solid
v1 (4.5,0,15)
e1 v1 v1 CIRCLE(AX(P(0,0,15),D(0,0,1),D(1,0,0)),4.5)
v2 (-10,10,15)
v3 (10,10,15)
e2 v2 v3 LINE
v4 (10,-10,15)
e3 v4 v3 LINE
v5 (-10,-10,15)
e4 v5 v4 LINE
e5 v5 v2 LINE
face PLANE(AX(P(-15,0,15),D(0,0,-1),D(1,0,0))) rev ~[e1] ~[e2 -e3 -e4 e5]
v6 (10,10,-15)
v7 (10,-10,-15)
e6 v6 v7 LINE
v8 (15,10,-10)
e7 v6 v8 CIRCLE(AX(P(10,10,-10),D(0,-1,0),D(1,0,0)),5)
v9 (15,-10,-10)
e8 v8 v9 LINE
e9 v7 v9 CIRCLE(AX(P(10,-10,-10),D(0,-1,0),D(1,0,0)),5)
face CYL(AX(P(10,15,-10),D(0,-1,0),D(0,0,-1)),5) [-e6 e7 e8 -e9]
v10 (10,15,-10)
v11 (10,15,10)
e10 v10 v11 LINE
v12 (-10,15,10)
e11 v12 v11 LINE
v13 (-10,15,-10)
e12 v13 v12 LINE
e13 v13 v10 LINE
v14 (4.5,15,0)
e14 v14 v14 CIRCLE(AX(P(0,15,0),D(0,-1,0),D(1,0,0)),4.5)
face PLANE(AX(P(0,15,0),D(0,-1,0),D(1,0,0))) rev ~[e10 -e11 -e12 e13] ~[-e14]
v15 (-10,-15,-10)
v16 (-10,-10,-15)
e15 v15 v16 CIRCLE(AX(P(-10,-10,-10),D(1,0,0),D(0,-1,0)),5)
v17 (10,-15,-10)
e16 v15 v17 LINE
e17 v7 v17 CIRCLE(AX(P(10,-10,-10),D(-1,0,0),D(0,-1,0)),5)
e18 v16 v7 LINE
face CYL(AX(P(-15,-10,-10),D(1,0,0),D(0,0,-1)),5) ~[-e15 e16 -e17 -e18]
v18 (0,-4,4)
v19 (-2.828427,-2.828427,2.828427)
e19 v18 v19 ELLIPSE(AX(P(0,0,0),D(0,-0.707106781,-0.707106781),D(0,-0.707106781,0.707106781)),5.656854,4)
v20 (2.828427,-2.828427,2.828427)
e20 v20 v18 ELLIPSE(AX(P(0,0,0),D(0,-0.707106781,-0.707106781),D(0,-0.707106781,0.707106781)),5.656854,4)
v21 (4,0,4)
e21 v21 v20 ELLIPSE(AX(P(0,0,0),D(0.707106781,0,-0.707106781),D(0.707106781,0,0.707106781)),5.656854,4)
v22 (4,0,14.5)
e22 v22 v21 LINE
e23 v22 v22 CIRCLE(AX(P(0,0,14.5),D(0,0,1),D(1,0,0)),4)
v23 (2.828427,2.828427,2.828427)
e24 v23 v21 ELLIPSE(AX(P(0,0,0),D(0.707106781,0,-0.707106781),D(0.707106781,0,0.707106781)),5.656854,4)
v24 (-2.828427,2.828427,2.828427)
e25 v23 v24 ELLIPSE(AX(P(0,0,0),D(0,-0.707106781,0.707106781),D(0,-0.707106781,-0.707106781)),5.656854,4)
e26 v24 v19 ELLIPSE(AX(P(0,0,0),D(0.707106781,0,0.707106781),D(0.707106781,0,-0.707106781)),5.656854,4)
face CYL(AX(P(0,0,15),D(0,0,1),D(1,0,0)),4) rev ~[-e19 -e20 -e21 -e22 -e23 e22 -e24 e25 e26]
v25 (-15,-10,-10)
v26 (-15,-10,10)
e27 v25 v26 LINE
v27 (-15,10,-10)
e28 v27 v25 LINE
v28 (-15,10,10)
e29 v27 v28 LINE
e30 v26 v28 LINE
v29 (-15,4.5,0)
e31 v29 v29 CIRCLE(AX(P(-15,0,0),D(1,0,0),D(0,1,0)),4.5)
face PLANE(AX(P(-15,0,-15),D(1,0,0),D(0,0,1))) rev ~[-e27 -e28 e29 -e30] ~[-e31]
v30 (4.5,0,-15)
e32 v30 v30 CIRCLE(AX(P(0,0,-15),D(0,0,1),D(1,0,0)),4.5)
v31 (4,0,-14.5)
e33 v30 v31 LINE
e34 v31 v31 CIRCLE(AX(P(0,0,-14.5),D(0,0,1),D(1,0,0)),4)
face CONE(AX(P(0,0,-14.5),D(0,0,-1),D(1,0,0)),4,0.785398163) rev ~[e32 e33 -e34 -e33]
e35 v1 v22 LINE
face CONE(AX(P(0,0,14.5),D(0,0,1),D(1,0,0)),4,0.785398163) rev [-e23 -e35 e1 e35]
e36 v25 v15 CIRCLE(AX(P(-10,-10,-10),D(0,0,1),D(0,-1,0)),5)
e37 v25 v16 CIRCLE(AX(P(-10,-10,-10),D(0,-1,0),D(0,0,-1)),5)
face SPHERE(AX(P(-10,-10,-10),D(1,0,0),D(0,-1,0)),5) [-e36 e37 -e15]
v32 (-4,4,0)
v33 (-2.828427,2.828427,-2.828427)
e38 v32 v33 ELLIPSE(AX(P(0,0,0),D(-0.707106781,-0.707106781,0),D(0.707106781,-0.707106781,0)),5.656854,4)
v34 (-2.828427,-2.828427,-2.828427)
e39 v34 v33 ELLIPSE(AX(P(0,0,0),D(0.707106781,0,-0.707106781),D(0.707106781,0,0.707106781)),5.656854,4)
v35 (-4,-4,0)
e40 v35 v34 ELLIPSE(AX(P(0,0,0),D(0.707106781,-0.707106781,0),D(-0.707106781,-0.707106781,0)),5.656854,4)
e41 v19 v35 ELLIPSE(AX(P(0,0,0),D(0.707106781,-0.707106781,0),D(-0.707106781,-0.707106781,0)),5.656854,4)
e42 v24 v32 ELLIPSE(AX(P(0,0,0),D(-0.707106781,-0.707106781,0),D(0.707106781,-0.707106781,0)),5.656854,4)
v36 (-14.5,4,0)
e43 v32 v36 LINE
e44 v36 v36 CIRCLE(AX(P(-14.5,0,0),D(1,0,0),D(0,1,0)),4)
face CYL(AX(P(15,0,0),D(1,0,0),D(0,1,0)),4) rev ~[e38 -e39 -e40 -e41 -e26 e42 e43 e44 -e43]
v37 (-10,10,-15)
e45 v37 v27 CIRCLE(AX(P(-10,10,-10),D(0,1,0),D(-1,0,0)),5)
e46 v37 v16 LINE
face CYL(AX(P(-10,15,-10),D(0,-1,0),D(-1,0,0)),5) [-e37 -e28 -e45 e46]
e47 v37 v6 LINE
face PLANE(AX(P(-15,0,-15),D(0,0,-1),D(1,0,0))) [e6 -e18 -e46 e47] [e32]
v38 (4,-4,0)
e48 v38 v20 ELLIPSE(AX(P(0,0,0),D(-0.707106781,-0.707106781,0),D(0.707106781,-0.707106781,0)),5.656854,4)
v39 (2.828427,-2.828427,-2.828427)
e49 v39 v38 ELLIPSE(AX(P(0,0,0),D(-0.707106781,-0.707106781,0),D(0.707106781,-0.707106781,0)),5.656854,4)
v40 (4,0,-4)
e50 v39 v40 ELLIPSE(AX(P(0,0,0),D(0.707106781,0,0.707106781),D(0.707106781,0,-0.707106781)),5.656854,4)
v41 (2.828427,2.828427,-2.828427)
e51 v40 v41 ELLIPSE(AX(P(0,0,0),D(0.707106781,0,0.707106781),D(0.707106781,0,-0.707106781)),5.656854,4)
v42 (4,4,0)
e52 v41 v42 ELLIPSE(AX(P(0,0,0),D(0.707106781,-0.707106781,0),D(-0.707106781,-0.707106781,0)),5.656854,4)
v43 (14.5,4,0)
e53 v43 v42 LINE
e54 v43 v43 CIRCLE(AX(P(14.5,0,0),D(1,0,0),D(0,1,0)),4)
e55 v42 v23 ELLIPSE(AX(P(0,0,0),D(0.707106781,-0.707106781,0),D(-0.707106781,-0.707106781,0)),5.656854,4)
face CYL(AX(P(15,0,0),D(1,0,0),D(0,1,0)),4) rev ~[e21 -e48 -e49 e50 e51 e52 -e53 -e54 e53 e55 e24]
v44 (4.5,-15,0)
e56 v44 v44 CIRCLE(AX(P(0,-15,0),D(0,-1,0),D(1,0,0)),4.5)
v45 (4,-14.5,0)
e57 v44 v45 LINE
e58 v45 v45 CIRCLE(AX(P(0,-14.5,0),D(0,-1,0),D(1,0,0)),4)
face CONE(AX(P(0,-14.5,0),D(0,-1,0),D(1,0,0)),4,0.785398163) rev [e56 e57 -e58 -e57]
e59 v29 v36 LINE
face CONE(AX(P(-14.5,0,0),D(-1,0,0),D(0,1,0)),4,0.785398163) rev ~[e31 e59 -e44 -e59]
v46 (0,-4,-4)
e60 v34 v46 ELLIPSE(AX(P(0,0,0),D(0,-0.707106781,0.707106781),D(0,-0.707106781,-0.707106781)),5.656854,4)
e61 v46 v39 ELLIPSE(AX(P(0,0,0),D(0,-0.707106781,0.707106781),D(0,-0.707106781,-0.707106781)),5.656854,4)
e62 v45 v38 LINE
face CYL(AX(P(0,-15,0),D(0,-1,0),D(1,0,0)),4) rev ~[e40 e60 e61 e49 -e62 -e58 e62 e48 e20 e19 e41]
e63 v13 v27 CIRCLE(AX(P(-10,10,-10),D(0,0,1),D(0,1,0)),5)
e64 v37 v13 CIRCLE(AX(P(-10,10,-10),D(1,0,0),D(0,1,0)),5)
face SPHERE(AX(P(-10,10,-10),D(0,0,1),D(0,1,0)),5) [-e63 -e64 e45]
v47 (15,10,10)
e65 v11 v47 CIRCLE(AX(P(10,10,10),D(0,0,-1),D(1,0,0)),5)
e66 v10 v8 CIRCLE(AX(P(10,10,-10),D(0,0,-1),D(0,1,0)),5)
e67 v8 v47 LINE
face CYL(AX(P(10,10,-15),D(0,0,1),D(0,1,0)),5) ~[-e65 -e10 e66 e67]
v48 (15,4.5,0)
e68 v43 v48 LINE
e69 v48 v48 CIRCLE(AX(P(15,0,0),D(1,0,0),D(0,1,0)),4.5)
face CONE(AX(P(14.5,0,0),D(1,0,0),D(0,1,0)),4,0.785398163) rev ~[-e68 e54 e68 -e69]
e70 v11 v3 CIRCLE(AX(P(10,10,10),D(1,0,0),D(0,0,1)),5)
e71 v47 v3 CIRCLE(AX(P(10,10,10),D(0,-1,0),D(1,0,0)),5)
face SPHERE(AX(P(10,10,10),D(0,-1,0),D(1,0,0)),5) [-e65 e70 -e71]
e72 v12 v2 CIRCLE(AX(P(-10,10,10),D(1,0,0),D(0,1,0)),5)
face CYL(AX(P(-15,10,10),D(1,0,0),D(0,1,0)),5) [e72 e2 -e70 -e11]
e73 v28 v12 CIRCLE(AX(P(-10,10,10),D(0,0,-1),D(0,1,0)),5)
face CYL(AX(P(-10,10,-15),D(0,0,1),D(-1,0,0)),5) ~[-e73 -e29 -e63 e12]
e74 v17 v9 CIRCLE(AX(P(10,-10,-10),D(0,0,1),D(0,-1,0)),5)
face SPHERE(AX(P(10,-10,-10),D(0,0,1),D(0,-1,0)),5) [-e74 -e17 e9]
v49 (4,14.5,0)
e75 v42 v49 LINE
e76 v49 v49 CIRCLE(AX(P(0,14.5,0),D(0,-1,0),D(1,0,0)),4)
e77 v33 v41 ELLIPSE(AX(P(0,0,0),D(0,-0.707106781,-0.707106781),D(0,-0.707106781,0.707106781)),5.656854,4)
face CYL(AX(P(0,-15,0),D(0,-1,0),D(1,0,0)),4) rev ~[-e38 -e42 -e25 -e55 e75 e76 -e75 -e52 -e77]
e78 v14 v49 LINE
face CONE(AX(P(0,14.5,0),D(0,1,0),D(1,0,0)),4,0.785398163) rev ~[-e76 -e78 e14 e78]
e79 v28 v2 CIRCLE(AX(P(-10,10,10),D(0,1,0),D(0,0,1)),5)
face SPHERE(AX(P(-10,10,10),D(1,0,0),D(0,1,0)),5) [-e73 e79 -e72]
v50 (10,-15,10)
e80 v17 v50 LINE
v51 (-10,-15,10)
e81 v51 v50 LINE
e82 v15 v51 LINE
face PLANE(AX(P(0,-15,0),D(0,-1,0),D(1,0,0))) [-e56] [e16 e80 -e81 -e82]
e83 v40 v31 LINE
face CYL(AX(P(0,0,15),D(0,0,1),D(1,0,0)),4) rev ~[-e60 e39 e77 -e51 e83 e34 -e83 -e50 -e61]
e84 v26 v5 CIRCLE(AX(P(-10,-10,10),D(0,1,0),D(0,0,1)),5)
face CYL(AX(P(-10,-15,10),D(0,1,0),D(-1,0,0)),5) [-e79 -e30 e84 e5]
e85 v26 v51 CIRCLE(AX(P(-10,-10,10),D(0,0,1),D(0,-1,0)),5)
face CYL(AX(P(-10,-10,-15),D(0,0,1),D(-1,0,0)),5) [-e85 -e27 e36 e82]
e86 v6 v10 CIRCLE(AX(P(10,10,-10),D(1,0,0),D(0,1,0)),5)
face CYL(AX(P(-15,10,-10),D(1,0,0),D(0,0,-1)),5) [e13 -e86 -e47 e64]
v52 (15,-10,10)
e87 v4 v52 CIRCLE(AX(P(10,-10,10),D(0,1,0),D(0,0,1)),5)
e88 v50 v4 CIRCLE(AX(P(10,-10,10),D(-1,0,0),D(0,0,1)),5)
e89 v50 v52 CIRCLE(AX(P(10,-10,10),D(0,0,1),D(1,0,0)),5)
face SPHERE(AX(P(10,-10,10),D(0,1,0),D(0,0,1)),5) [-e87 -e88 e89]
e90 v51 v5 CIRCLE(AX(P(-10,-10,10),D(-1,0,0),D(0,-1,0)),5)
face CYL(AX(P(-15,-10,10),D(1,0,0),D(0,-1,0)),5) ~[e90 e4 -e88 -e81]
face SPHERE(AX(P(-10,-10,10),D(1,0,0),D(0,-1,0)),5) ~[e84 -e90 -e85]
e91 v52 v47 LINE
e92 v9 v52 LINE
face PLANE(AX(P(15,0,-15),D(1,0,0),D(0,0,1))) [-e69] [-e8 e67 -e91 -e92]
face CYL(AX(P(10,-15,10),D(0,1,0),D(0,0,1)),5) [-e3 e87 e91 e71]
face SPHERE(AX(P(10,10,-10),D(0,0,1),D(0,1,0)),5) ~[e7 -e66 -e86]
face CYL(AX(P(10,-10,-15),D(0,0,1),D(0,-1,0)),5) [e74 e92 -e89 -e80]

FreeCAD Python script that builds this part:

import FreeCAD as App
import Part
import Sketcher

V = App.Vector


def edges_at(feature, points):
    """Names of the edges that pass closest to the given points."""
    edges = feature.Shape.Edges
    near = lambda p: min(range(len(edges)), key=lambda i: edges[i].distToShape(Part.Vertex(*p))[0])
    return sorted({f"Edge{near(p) + 1}" for p in points})


def add_polygon(sketch, points):
    """Adds a closed chain of lines whose ends are joined by coincident constraints."""
    first, n = sketch.GeometryCount, len(points)
    for a, b in zip(points, points[1:] + points[:1]):
        sketch.addGeometry(Part.LineSegment(App.Vector(*a, 0), App.Vector(*b, 0)), False)
    for i in range(n):
        sketch.addConstraint(Sketcher.Constraint("Coincident", first + i, 2, first + (i + 1) % n, 1))

doc = App.newDocument("Part")
body = doc.addObject("PartDesign::Body", "Body")

sketch1 = body.newObject("Sketcher::SketchObject", "Sketch")
sketch1.AttachmentSupport = (doc.getObject("XZ_Plane"), [""])
sketch1.MapMode = "FlatFace"
add_polygon(sketch1, [(-15, 15), (-15, -15), (15, -15), (15, 15)])
sketch1.addConstraint([
    Sketcher.Constraint("Vertical", 0),
    Sketcher.Constraint("Horizontal", 1),
    Sketcher.Constraint("Vertical", 2),
    Sketcher.Constraint("Horizontal", 3),
    Sketcher.Constraint("Symmetric", 0, 2, 2, 2, -1, 1),
    Sketcher.Constraint("Equal", 3, 0),
    Sketcher.Constraint("DistanceX", 1, 1, 1, 2, 30.0),
])
pad1 = body.newObject("PartDesign::Pad", "Pad")
pad1.Profile = sketch1
pad1.Length = 30
pad1.Midplane = True

sketch2 = body.newObject("Sketcher::SketchObject", "Sketch001")
sketch2.AttachmentSupport = (doc.getObject("XZ_Plane"), [""])
sketch2.MapMode = "FlatFace"
sketch2.AttachmentOffset = App.Placement(V(0, 0, 15), App.Rotation())
sketch2.addGeometry(Part.Circle(V(0, 0, 0), V(0, 0, 1), 4), False)
sketch2.addConstraint([
    Sketcher.Constraint("Coincident", 0, 3, -1, 1),
    Sketcher.Constraint("Diameter", 0, 8.0),
])
pocket1 = body.newObject("PartDesign::Pocket", "Pocket")
pocket1.Profile = sketch2
pocket1.Type = "ThroughAll"

sketch3 = body.newObject("Sketcher::SketchObject", "Sketch002")
sketch3.AttachmentSupport = (doc.getObject("YZ_Plane"), [""])
sketch3.MapMode = "FlatFace"
sketch3.AttachmentOffset = App.Placement(V(0, 0, 15), App.Rotation())
sketch3.addGeometry(Part.Circle(V(0, 0, 0), V(0, 0, 1), 4), False)
sketch3.addConstraint([
    Sketcher.Constraint("Coincident", 0, 3, -1, 1),
    Sketcher.Constraint("Diameter", 0, 8.0),
])
pocket2 = body.newObject("PartDesign::Pocket", "Pocket001")
pocket2.Profile = sketch3
pocket2.Type = "ThroughAll"

sketch4 = body.newObject("Sketcher::SketchObject", "Sketch003")
sketch4.AttachmentSupport = (doc.getObject("XY_Plane"), [""])
sketch4.MapMode = "FlatFace"
sketch4.AttachmentOffset = App.Placement(V(0, 0, 15), App.Rotation())
sketch4.addGeometry(Part.Circle(V(0, 0, 0), V(0, 0, 1), 4), False)
sketch4.addConstraint([
    Sketcher.Constraint("Coincident", 0, 3, -1, 1),
    Sketcher.Constraint("Diameter", 0, 8.0),
])
pocket3 = body.newObject("PartDesign::Pocket", "Pocket002")
pocket3.Profile = sketch4
pocket3.Type = "ThroughAll"
doc.recompute()

fillet = body.newObject("PartDesign::Fillet", "Fillet")
fillet.Base = (pocket3, edges_at(pocket3, [
    (15, 0, 15),
    (0, -15, 15),
    (15, -15, 0),
    (0, -15, -15),
    (-15, -15, 0),
    (15, 15, 0),
    (0, 15, 15),
    (-15, 15, 0),
    (0, 15, -15),
    (-15, 0, 15),
    (-15, 0, -15),
    (15, 0, -15),
]))
fillet.Radius = 5
doc.recompute()

chamfer = body.newObject("PartDesign::Chamfer", "Chamfer")
chamfer.Base = (fillet, edges_at(fillet, [
    (-4, 0, 15),
    (-4, -15, 0),
    (15, -4, 0),
    (-4, 15, 0),
    (-15, -4, 0),
    (-4, 0, -15),
]))
chamfer.Size = 0.5

doc.recompute()
